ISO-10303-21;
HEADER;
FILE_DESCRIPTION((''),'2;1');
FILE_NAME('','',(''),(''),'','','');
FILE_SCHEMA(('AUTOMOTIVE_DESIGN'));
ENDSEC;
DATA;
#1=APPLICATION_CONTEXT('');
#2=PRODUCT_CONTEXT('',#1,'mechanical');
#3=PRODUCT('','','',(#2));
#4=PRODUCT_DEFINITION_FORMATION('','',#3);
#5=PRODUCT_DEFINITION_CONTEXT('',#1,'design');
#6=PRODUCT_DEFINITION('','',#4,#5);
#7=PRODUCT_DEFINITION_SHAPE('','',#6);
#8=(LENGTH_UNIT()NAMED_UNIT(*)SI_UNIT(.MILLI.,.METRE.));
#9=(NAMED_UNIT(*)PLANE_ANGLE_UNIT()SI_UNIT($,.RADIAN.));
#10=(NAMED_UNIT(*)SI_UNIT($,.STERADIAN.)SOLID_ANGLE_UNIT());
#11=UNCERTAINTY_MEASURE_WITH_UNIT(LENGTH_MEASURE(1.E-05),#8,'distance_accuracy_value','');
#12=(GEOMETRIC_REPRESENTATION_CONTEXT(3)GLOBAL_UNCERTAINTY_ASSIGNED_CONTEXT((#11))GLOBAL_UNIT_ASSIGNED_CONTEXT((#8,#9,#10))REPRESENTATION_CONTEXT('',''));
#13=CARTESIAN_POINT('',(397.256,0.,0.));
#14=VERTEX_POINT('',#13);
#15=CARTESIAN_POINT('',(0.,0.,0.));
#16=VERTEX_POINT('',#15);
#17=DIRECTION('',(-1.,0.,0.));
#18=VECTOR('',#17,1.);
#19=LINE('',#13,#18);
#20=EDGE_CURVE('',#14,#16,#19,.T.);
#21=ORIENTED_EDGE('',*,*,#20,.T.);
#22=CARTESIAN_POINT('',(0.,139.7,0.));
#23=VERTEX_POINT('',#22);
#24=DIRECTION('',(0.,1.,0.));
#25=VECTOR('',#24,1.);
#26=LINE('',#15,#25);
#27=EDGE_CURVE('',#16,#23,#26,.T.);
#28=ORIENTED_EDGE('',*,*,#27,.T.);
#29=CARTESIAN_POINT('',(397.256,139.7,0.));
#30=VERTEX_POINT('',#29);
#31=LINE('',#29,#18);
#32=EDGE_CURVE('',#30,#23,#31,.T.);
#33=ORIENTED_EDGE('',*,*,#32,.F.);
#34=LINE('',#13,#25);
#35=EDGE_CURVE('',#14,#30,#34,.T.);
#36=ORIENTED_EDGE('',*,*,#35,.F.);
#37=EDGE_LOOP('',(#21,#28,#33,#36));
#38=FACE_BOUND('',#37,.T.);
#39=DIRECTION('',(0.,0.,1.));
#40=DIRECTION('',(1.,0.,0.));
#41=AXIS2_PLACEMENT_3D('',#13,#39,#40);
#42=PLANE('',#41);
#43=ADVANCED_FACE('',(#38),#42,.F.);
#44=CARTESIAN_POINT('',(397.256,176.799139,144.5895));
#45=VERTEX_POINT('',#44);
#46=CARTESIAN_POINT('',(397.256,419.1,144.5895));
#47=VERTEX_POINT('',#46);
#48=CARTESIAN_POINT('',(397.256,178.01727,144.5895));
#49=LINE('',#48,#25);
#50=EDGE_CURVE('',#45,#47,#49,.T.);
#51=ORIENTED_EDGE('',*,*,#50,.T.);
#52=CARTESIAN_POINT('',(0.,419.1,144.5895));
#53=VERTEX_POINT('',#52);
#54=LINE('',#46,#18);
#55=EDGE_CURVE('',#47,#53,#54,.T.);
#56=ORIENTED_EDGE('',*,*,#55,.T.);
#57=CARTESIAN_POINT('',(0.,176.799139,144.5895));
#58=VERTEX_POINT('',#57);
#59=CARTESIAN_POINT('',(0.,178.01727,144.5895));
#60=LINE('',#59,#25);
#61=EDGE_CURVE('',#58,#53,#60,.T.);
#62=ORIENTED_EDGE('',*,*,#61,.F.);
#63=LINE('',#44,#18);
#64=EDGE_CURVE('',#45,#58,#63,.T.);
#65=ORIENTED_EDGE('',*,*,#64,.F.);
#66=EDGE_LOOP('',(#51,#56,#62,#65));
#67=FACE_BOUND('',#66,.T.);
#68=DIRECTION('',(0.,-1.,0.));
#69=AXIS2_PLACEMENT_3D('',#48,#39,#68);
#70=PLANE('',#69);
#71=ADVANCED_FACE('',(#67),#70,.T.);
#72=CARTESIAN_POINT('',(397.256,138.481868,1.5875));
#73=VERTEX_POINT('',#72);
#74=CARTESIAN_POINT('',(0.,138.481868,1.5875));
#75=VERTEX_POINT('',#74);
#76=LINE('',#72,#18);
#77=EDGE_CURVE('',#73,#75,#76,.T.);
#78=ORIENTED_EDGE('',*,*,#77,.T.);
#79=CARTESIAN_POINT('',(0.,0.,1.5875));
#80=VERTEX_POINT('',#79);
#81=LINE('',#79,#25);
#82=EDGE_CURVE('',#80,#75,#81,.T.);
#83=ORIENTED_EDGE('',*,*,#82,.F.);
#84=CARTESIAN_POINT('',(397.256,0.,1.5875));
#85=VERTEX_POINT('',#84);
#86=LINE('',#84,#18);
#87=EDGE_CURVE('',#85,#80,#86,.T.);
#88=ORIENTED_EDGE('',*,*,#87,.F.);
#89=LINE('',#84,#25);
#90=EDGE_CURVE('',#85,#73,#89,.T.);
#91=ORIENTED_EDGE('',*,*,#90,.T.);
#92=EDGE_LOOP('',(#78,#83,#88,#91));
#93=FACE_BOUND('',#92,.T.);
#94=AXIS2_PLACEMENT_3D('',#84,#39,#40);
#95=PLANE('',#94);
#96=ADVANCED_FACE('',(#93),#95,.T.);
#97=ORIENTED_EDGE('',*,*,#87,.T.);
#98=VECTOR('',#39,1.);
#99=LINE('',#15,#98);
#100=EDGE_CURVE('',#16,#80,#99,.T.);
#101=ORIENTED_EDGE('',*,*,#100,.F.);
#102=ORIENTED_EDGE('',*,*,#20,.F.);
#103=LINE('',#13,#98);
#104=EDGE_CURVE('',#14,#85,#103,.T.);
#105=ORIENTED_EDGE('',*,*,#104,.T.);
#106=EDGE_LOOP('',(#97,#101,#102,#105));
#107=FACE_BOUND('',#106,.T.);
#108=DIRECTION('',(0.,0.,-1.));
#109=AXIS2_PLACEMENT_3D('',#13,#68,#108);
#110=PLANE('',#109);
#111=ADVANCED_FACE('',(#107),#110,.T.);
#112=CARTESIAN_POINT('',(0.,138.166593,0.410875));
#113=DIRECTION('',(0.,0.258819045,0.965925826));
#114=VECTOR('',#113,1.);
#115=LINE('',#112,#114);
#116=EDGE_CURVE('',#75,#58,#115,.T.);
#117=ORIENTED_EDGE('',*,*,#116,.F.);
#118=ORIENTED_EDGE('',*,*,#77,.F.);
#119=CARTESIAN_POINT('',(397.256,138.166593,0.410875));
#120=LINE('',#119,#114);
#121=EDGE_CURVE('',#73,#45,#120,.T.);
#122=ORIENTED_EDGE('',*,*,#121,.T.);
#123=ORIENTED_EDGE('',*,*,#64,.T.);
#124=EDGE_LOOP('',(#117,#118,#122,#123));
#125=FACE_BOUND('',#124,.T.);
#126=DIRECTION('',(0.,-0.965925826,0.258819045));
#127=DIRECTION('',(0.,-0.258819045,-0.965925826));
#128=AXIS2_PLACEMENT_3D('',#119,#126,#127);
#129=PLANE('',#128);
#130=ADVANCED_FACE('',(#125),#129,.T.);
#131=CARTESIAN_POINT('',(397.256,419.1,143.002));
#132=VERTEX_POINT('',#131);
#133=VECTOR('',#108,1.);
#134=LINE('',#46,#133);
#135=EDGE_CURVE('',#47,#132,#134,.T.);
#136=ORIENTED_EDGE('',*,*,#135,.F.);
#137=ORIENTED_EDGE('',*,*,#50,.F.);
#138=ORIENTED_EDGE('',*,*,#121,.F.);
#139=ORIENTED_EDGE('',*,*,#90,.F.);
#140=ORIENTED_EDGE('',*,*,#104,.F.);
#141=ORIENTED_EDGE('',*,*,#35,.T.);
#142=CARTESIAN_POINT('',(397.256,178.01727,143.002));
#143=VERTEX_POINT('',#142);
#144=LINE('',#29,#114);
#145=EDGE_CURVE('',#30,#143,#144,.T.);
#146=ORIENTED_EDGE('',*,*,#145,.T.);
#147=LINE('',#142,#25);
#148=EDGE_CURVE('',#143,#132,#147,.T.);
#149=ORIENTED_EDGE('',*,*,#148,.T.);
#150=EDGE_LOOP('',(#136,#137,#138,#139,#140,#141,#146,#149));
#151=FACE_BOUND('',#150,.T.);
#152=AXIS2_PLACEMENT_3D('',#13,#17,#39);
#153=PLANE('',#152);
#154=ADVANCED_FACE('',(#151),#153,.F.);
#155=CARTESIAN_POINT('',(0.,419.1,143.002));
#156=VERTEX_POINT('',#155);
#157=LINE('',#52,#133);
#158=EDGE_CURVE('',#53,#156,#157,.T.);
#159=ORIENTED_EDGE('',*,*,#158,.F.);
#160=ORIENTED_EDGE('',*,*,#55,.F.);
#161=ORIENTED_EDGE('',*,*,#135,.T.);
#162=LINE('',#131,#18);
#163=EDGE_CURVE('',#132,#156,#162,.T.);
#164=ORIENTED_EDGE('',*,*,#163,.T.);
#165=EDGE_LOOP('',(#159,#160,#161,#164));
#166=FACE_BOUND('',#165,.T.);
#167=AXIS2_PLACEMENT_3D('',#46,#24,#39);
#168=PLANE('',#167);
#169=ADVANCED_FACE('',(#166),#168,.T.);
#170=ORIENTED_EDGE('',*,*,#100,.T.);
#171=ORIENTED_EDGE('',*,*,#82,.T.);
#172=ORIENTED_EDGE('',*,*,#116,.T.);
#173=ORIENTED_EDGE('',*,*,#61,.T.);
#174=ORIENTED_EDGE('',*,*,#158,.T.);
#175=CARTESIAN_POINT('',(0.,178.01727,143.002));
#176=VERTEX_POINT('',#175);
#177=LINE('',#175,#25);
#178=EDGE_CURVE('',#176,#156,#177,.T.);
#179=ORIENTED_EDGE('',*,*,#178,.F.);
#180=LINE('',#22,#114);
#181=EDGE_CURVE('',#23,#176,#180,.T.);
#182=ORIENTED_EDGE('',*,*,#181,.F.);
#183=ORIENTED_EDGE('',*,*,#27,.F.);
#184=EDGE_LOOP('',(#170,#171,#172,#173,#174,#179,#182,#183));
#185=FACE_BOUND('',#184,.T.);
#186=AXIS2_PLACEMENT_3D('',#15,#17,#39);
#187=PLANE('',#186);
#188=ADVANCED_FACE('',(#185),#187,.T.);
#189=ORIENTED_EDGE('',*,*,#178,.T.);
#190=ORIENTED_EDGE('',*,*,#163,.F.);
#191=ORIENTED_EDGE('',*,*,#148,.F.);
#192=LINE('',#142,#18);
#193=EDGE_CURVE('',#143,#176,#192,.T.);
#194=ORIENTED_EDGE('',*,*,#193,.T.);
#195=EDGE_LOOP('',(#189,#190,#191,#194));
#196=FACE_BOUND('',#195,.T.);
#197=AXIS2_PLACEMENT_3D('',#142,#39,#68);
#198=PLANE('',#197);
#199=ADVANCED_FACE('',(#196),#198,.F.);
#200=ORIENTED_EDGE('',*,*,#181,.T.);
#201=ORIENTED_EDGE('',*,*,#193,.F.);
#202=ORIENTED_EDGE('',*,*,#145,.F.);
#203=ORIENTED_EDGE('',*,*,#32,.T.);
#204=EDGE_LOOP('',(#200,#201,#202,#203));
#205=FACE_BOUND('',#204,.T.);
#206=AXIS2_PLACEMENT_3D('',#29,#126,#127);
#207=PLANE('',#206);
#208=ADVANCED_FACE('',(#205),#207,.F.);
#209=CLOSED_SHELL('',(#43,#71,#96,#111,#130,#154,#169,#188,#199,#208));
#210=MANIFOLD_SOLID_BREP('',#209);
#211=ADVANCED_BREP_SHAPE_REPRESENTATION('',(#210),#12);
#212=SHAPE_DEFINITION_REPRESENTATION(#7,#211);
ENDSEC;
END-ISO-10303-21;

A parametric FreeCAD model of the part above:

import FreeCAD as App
import Part
import Sketcher

V = App.Vector
Q = App.Units.Quantity


def add_polygon(sketch, points):
    """Adds a closed chain of lines whose ends are joined by coincident constraints."""
    first, n = sketch.GeometryCount, len(points)
    for a, b in zip(points, points[1:] + points[:1]):
        sketch.addGeometry(Part.LineSegment(App.Vector(*a, 0), App.Vector(*b, 0)), False)
    for i in range(n):
        sketch.addConstraint(Sketcher.Constraint("Coincident", first + i, 2, first + (i + 1) % n, 1))

doc = App.newDocument("Part")
params = doc.addObject("Spreadsheet::Sheet", "Params")
for row, (alias, value) in enumerate([
    ("sketch1_width", "5.5 in"),
    ("sketch1_height", "0.0625 in"),
    ("pad1_length", "15.64 in"),
], start=1):
    params.set(f"A{row}", alias)
    params.set(f"B{row}", "=" + value)
    params.setAlias(f"B{row}", alias)

body = doc.addObject("PartDesign::Body", "Body")

# Sketch on YZ plane
sketch1 = body.newObject("Sketcher::SketchObject", "Sketch")
sketch1.AttachmentSupport = (doc.getObject("YZ_Plane"), [""])
sketch1.MapMode = "FlatFace"
add_polygon(sketch1, [(0, 0), (139.7, 0), (178, 143), (419.1, 143), (419.1, 144.6), (176.8, 144.6), (138.5, 1.6), (0, 1.6)])  # lines 0-7
sketch1.addConstraint(Sketcher.Constraint("Horizontal", 0))
sketch1.addConstraint(Sketcher.Constraint("Horizontal", 2))
sketch1.addConstraint(Sketcher.Constraint("Vertical", 3))
sketch1.addConstraint(Sketcher.Constraint("Horizontal", 4))
sketch1.addConstraint(Sketcher.Constraint("Horizontal", 6))
sketch1.addConstraint(Sketcher.Constraint("Vertical", 7))
sketch1.addConstraint(Sketcher.Constraint("Coincident", 7, 2, -1, 1))
sketch1.addConstraint(Sketcher.Constraint("Parallel", 1, 5))
sketch1.addConstraint(Sketcher.Constraint("Equal", 3, 7))
sketch1.addConstraint(Sketcher.Constraint("DistanceX", 0, 1, 0, 2, Q("5.5 in")))
sketch1.addConstraint(Sketcher.Constraint("Angle", 1, Q("75 deg")))
sketch1.addConstraint(Sketcher.Constraint("DistanceX", 0, 2, 2, 2, Q("11 in")))
sketch1.addConstraint(Sketcher.Constraint("DistanceY", 3, 1, 3, 2, Q("0.0625 in")))
sketch1.addConstraint(Sketcher.Constraint("DistanceY", -1, 1, 1, 2, Q("5.63 in")))
sketch1.addConstraint(Sketcher.Constraint("DistanceX", 4, 2, 4, 1, Q("242.300861 mm")))
sketch1.setExpression("Constraints[17]", "Params.sketch1_width")
sketch1.setExpression("Constraints[20]", "Params.sketch1_height")
pad1 = body.newObject("PartDesign::Pad", "Pad")
pad1.Profile = sketch1
pad1.setExpression("Length", "Params.pad1_length")

doc.recompute()
